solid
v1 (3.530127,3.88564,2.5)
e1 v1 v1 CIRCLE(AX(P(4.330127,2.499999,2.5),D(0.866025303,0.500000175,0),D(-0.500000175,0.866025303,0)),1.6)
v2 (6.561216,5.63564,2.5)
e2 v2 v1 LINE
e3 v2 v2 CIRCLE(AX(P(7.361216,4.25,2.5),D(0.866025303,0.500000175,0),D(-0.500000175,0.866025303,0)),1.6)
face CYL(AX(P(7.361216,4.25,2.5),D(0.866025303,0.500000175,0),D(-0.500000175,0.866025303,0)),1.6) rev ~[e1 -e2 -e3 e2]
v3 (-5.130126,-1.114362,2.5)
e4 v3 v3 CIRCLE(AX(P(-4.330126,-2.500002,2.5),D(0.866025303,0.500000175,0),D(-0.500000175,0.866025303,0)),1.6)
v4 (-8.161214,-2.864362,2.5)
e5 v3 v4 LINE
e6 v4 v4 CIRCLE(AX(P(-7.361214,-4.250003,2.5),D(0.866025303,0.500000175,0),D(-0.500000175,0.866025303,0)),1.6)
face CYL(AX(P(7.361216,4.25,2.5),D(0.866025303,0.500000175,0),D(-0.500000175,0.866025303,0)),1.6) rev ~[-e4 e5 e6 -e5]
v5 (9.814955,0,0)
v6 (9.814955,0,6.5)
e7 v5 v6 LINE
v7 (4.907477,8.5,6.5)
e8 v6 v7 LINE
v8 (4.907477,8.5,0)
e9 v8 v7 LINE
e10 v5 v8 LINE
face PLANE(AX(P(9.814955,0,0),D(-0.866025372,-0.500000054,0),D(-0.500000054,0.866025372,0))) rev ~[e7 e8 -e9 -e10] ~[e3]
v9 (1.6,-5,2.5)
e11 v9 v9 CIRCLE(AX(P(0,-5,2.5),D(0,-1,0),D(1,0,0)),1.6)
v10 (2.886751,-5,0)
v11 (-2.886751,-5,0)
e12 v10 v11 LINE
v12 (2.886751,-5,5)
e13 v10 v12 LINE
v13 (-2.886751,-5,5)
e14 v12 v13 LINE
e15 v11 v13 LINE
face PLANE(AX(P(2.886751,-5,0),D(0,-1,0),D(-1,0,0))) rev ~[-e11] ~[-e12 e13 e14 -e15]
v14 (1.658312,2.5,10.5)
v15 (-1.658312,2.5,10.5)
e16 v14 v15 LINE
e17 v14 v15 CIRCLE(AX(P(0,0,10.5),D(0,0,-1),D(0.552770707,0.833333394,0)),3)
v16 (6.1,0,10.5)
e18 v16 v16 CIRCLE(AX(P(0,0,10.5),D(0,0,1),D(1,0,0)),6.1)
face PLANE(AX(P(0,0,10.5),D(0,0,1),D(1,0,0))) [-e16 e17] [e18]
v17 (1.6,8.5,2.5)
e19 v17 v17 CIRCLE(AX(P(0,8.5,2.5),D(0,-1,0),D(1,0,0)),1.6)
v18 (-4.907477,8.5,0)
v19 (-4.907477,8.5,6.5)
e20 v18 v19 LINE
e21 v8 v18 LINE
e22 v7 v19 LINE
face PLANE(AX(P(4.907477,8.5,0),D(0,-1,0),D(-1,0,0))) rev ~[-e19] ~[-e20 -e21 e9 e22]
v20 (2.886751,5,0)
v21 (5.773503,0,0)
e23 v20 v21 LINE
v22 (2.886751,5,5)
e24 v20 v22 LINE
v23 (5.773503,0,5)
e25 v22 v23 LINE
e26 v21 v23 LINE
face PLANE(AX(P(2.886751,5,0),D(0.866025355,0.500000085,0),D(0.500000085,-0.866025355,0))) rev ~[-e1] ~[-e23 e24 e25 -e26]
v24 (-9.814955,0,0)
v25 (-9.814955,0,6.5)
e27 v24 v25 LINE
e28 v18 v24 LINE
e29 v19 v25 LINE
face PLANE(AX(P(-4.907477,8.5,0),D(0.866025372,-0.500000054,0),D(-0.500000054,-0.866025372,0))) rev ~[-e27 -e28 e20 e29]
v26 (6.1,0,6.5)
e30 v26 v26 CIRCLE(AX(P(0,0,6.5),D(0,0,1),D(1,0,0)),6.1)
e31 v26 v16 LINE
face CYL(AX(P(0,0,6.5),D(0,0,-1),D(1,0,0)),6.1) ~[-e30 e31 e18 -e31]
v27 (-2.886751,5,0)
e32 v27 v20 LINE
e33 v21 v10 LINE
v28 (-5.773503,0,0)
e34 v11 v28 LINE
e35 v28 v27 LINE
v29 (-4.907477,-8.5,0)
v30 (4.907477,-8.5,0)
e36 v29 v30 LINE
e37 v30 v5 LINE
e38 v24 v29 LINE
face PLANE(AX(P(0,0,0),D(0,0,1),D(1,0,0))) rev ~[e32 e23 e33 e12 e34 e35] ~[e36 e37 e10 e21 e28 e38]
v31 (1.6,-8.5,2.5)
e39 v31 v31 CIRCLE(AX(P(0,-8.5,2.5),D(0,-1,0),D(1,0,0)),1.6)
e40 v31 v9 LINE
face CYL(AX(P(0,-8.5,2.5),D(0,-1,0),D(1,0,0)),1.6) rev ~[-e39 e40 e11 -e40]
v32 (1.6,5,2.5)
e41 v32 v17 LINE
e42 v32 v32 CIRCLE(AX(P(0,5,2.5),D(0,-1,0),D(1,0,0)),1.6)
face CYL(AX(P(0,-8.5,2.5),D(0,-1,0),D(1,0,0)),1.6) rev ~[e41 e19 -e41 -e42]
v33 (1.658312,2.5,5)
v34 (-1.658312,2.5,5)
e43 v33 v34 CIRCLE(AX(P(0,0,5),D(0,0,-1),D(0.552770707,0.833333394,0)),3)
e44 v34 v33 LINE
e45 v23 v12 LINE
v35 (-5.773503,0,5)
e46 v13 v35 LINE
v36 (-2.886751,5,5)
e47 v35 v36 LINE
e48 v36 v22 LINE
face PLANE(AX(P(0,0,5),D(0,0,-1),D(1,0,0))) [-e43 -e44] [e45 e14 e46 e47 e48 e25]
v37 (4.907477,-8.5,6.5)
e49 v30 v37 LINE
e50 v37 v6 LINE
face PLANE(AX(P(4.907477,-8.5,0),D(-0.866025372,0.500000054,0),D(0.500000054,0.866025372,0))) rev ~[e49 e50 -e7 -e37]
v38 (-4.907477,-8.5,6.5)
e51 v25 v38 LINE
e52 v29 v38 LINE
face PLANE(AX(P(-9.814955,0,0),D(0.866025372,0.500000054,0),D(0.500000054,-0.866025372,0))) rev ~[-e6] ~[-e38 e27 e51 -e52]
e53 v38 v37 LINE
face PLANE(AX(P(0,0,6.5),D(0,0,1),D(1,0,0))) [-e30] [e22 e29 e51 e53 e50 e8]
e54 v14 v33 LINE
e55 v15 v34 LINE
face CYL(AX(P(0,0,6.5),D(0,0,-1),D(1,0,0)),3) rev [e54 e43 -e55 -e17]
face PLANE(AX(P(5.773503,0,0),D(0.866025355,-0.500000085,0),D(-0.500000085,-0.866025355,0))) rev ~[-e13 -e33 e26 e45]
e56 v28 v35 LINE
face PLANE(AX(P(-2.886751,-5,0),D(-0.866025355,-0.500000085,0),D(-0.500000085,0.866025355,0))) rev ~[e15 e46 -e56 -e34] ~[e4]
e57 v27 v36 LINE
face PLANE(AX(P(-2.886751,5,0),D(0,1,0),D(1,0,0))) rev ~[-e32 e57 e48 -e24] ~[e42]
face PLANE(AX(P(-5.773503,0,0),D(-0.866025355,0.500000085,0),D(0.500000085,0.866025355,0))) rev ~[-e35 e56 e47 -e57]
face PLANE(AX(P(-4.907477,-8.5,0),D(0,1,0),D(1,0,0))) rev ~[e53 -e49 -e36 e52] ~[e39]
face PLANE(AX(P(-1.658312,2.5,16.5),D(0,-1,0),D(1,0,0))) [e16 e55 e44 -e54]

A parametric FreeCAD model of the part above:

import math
import FreeCAD as App
import Part
import Sketcher

V = App.Vector
Q = App.Units.Quantity


def add_polygon(sketch, points):
    """Adds a closed chain of lines whose ends are joined by coincident constraints."""
    first, n = sketch.GeometryCount, len(points)
    for a, b in zip(points, points[1:] + points[:1]):
        sketch.addGeometry(Part.LineSegment(App.Vector(*a, 0), App.Vector(*b, 0)), False)
    for i in range(n):
        sketch.addConstraint(Sketcher.Constraint("Coincident", first + i, 2, first + (i + 1) % n, 1))

doc = App.newDocument("Part")
body = doc.addObject("PartDesign::Body", "Body")

# Sketch on XY plane
sketch1 = body.newObject("Sketcher::SketchObject", "Sketch")
sketch1.AttachmentSupport = (doc.getObject("XY_Plane"), [""])
sketch1.MapMode = "FlatFace"
add_polygon(sketch1, [(9.814955, 0), (4.907477, 8.5), (-4.907477, 8.5), (-9.814955, 0), (-4.907477, -8.5), (4.907477, -8.5)])  # lines 0-5
sketch1.addGeometry(Part.Circle(V(0, 0, 0), V(0, 0, 1), 3), False)  # 6
sketch1.addConstraint(Sketcher.Constraint("Horizontal", 1))
sketch1.addConstraint(Sketcher.Constraint("Horizontal", 4))
sketch1.addConstraint(Sketcher.Constraint("Coincident", 6, 3, -1, 1))
sketch1.addConstraint(Sketcher.Constraint("Symmetric", 0, 2, 3, 2, -1, 1))
sketch1.addConstraint(Sketcher.Constraint("Symmetric", 2, 2, 5, 2, -1, 1))
sketch1.addConstraint(Sketcher.Constraint("PointOnObject", 2, 2, -1))
sketch1.addConstraint(Sketcher.Constraint("Parallel", 2, 5))
sketch1.addConstraint(Sketcher.Constraint("Vertical", 1, 2, 3, 2))
sketch1.addConstraint(Sketcher.Constraint("Diameter", 6, Q("6 mm")))
sketch1.addConstraint(Sketcher.Constraint("Angle", 0, Q("120.000004 deg")))
sketch1.addConstraint(Sketcher.Constraint("DistanceY", 3, 2, 1, 2, Q("17 mm")))
sketch1.addConstraint(Sketcher.Constraint("DistanceX", 1, 2, 1, 1, Q("9.814954 mm")))
pad1 = body.newObject("PartDesign::Pad", "Pad")
pad1.Profile = sketch1
pad1.Length = 6.5

# Sketch on XY plane
sketch2 = body.newObject("Sketcher::SketchObject", "Sketch001")
sketch2.AttachmentSupport = (doc.getObject("XY_Plane"), [""])
sketch2.MapMode = "FlatFace"
sketch2.AttachmentOffset = App.Placement(V(0, 0, 6.5), App.Rotation())
sketch2.addGeometry(Part.Circle(V(0, 0, 0), V(0, 0, 1), 6.1), False)
sketch2.addGeometry(Part.Circle(V(0, 0, 0), V(0, 0, 1), 3), False)
sketch2.addConstraint(Sketcher.Constraint("Coincident", 0, 3, -1, 1))
sketch2.addConstraint(Sketcher.Constraint("Coincident", 1, 3, -1, 1))
sketch2.addConstraint(Sketcher.Constraint("Diameter", 1, Q("6 mm")))
sketch2.addConstraint(Sketcher.Constraint("Diameter", 0, Q("12.2 mm")))
pad2 = body.newObject("PartDesign::Pad", "Pad001")
pad2.Profile = sketch2
pad2.Length = 10

# Sketch on XY plane
sketch3 = body.newObject("Sketcher::SketchObject", "Sketch002")
sketch3.AttachmentSupport = (doc.getObject("XY_Plane"), [""])
sketch3.MapMode = "FlatFace"
sketch3.AttachmentOffset = App.Placement(V(0, 0, 16.5), App.Rotation())
sketch3.addGeometry(Part.LineSegment(V(-1.658312, 2.5, 0), V(1.658312, 2.5, 0)), False)
sketch3.addGeometry(Part.ArcOfCircle(Part.Circle(V(0, 0.000001, 0), V(0, 0, 1), 2.999999), math.radians(56.442683), math.radians(123.557317)), False)
sketch3.addConstraint(Sketcher.Constraint("Coincident", 0, 1, 1, 2))
sketch3.addConstraint(Sketcher.Constraint("Coincident", 1, 1, 0, 2))
sketch3.addConstraint(Sketcher.Constraint("Horizontal", 0))
sketch3.addConstraint(Sketcher.Constraint("Coincident", 1, 3, -1, 1))
sketch3.addConstraint(Sketcher.Constraint("Radius", 1, Q("2.999999 mm")))
sketch3.addConstraint(Sketcher.Constraint("DistanceY", -1, 1, 0, 1, Q("2.5 mm")))
pad3 = body.newObject("PartDesign::Pad", "Pad002")
pad3.Profile = sketch3
pad3.Length = 13
pad3.Reversed = True

# Sketch on XY plane
sketch4 = body.newObject("Sketcher::SketchObject", "Sketch003")
sketch4.AttachmentSupport = (doc.getObject("XY_Plane"), [""])
sketch4.MapMode = "FlatFace"
sketch4.AttachmentOffset = App.Placement(V(0, 0, 16.5), App.Rotation())
sketch4.addGeometry(Part.Circle(V(0, 0, 0), V(0, 0, 1), 6.1), False)
sketch4.addConstraint(Sketcher.Constraint("Coincident", 0, 3, -1, 1))
sketch4.addConstraint(Sketcher.Constraint("Diameter", 0, Q("12.2 mm")))
pocket1 = body.newObject("PartDesign::Pocket", "Pocket")
pocket1.Profile = sketch4
pocket1.Length = 6

# Sketch on XY plane
sketch5 = body.newObject("Sketcher::SketchObject", "Sketch004")
sketch5.AttachmentSupport = (doc.getObject("XY_Plane"), [""])
sketch5.MapMode = "FlatFace"
add_polygon(sketch5, [(2.886751, -5), (-2.886751, -5), (-5.773503, 0), (-2.886751, 5), (2.886751, 5), (5.773503, 0)])  # lines 0-5
sketch5.addConstraint(Sketcher.Constraint("Horizontal", 0))
sketch5.addConstraint(Sketcher.Constraint("Horizontal", 3))
sketch5.addConstraint(Sketcher.Constraint("Symmetric", 0, 2, 3, 2, -1, 1))
sketch5.addConstraint(Sketcher.Constraint("Symmetric", 1, 2, 4, 2, -1, 1))
sketch5.addConstraint(Sketcher.Constraint("PointOnObject", 1, 2, -1))
sketch5.addConstraint(Sketcher.Constraint("Parallel", 2, 5))
sketch5.addConstraint(Sketcher.Constraint("Vertical", 0, 2, 2, 2))
sketch5.addConstraint(Sketcher.Constraint("Angle", 1, Q("120.000006 deg")))
sketch5.addConstraint(Sketcher.Constraint("DistanceY", 0, 2, -1, 1, Q("5 mm")))
sketch5.addConstraint(Sketcher.Constraint("DistanceX", 0, 2, 0, 1, Q("5.773502 mm")))
pocket2 = body.newObject("PartDesign::Pocket", "Pocket001")
pocket2.Profile = sketch5
pocket2.Length = 5
pocket2.Reversed = True

# Sketch on XZ plane
sketch6 = body.newObject("Sketcher::SketchObject", "Sketch005")
sketch6.AttachmentSupport = (doc.getObject("XZ_Plane"), [""])
sketch6.MapMode = "FlatFace"
sketch6.AttachmentOffset = App.Placement(V(0, 0, 8.5), App.Rotation())
sketch6.addGeometry(Part.Circle(V(0, 2.5, 0), V(0, 0, 1), 1.6), False)
sketch6.addConstraint(Sketcher.Constraint("PointOnObject", 0, 3, -2))
sketch6.addConstraint(Sketcher.Constraint("Diameter", 0, Q("3.2 mm")))
sketch6.addConstraint(Sketcher.Constraint("DistanceY", -1, 1, 0, 3, Q("2.5 mm")))
pocket3 = body.newObject("PartDesign::Pocket", "Pocket002")
pocket3.Profile = sketch6
pocket3.Type = "ThroughAll"

# Sketch on an angled plane
sketch7 = body.newObject("Sketcher::SketchObject", "Sketch006")
sketch7.Placement = App.Placement(V(7.361216, 4.25, 0), App.Rotation(V(-0.500000175, 0.866025303, 0), V(0, 0, 1), V(0.866025303, 0.500000175, 0), "ZXY"))
sketch7.addGeometry(Part.Circle(V(0, 2.5, 0), V(0, 0, 1), 1.6), False)
sketch7.addConstraint(Sketcher.Constraint("PointOnObject", 0, 3, -2))
sketch7.addConstraint(Sketcher.Constraint("Diameter", 0, Q("3.2 mm")))
sketch7.addConstraint(Sketcher.Constraint("DistanceY", -1, 1, 0, 3, Q("2.5 mm")))
pocket4 = body.newObject("PartDesign::Pocket", "Pocket003")
pocket4.Profile = sketch7
pocket4.Type = "ThroughAll"

doc.recompute()
